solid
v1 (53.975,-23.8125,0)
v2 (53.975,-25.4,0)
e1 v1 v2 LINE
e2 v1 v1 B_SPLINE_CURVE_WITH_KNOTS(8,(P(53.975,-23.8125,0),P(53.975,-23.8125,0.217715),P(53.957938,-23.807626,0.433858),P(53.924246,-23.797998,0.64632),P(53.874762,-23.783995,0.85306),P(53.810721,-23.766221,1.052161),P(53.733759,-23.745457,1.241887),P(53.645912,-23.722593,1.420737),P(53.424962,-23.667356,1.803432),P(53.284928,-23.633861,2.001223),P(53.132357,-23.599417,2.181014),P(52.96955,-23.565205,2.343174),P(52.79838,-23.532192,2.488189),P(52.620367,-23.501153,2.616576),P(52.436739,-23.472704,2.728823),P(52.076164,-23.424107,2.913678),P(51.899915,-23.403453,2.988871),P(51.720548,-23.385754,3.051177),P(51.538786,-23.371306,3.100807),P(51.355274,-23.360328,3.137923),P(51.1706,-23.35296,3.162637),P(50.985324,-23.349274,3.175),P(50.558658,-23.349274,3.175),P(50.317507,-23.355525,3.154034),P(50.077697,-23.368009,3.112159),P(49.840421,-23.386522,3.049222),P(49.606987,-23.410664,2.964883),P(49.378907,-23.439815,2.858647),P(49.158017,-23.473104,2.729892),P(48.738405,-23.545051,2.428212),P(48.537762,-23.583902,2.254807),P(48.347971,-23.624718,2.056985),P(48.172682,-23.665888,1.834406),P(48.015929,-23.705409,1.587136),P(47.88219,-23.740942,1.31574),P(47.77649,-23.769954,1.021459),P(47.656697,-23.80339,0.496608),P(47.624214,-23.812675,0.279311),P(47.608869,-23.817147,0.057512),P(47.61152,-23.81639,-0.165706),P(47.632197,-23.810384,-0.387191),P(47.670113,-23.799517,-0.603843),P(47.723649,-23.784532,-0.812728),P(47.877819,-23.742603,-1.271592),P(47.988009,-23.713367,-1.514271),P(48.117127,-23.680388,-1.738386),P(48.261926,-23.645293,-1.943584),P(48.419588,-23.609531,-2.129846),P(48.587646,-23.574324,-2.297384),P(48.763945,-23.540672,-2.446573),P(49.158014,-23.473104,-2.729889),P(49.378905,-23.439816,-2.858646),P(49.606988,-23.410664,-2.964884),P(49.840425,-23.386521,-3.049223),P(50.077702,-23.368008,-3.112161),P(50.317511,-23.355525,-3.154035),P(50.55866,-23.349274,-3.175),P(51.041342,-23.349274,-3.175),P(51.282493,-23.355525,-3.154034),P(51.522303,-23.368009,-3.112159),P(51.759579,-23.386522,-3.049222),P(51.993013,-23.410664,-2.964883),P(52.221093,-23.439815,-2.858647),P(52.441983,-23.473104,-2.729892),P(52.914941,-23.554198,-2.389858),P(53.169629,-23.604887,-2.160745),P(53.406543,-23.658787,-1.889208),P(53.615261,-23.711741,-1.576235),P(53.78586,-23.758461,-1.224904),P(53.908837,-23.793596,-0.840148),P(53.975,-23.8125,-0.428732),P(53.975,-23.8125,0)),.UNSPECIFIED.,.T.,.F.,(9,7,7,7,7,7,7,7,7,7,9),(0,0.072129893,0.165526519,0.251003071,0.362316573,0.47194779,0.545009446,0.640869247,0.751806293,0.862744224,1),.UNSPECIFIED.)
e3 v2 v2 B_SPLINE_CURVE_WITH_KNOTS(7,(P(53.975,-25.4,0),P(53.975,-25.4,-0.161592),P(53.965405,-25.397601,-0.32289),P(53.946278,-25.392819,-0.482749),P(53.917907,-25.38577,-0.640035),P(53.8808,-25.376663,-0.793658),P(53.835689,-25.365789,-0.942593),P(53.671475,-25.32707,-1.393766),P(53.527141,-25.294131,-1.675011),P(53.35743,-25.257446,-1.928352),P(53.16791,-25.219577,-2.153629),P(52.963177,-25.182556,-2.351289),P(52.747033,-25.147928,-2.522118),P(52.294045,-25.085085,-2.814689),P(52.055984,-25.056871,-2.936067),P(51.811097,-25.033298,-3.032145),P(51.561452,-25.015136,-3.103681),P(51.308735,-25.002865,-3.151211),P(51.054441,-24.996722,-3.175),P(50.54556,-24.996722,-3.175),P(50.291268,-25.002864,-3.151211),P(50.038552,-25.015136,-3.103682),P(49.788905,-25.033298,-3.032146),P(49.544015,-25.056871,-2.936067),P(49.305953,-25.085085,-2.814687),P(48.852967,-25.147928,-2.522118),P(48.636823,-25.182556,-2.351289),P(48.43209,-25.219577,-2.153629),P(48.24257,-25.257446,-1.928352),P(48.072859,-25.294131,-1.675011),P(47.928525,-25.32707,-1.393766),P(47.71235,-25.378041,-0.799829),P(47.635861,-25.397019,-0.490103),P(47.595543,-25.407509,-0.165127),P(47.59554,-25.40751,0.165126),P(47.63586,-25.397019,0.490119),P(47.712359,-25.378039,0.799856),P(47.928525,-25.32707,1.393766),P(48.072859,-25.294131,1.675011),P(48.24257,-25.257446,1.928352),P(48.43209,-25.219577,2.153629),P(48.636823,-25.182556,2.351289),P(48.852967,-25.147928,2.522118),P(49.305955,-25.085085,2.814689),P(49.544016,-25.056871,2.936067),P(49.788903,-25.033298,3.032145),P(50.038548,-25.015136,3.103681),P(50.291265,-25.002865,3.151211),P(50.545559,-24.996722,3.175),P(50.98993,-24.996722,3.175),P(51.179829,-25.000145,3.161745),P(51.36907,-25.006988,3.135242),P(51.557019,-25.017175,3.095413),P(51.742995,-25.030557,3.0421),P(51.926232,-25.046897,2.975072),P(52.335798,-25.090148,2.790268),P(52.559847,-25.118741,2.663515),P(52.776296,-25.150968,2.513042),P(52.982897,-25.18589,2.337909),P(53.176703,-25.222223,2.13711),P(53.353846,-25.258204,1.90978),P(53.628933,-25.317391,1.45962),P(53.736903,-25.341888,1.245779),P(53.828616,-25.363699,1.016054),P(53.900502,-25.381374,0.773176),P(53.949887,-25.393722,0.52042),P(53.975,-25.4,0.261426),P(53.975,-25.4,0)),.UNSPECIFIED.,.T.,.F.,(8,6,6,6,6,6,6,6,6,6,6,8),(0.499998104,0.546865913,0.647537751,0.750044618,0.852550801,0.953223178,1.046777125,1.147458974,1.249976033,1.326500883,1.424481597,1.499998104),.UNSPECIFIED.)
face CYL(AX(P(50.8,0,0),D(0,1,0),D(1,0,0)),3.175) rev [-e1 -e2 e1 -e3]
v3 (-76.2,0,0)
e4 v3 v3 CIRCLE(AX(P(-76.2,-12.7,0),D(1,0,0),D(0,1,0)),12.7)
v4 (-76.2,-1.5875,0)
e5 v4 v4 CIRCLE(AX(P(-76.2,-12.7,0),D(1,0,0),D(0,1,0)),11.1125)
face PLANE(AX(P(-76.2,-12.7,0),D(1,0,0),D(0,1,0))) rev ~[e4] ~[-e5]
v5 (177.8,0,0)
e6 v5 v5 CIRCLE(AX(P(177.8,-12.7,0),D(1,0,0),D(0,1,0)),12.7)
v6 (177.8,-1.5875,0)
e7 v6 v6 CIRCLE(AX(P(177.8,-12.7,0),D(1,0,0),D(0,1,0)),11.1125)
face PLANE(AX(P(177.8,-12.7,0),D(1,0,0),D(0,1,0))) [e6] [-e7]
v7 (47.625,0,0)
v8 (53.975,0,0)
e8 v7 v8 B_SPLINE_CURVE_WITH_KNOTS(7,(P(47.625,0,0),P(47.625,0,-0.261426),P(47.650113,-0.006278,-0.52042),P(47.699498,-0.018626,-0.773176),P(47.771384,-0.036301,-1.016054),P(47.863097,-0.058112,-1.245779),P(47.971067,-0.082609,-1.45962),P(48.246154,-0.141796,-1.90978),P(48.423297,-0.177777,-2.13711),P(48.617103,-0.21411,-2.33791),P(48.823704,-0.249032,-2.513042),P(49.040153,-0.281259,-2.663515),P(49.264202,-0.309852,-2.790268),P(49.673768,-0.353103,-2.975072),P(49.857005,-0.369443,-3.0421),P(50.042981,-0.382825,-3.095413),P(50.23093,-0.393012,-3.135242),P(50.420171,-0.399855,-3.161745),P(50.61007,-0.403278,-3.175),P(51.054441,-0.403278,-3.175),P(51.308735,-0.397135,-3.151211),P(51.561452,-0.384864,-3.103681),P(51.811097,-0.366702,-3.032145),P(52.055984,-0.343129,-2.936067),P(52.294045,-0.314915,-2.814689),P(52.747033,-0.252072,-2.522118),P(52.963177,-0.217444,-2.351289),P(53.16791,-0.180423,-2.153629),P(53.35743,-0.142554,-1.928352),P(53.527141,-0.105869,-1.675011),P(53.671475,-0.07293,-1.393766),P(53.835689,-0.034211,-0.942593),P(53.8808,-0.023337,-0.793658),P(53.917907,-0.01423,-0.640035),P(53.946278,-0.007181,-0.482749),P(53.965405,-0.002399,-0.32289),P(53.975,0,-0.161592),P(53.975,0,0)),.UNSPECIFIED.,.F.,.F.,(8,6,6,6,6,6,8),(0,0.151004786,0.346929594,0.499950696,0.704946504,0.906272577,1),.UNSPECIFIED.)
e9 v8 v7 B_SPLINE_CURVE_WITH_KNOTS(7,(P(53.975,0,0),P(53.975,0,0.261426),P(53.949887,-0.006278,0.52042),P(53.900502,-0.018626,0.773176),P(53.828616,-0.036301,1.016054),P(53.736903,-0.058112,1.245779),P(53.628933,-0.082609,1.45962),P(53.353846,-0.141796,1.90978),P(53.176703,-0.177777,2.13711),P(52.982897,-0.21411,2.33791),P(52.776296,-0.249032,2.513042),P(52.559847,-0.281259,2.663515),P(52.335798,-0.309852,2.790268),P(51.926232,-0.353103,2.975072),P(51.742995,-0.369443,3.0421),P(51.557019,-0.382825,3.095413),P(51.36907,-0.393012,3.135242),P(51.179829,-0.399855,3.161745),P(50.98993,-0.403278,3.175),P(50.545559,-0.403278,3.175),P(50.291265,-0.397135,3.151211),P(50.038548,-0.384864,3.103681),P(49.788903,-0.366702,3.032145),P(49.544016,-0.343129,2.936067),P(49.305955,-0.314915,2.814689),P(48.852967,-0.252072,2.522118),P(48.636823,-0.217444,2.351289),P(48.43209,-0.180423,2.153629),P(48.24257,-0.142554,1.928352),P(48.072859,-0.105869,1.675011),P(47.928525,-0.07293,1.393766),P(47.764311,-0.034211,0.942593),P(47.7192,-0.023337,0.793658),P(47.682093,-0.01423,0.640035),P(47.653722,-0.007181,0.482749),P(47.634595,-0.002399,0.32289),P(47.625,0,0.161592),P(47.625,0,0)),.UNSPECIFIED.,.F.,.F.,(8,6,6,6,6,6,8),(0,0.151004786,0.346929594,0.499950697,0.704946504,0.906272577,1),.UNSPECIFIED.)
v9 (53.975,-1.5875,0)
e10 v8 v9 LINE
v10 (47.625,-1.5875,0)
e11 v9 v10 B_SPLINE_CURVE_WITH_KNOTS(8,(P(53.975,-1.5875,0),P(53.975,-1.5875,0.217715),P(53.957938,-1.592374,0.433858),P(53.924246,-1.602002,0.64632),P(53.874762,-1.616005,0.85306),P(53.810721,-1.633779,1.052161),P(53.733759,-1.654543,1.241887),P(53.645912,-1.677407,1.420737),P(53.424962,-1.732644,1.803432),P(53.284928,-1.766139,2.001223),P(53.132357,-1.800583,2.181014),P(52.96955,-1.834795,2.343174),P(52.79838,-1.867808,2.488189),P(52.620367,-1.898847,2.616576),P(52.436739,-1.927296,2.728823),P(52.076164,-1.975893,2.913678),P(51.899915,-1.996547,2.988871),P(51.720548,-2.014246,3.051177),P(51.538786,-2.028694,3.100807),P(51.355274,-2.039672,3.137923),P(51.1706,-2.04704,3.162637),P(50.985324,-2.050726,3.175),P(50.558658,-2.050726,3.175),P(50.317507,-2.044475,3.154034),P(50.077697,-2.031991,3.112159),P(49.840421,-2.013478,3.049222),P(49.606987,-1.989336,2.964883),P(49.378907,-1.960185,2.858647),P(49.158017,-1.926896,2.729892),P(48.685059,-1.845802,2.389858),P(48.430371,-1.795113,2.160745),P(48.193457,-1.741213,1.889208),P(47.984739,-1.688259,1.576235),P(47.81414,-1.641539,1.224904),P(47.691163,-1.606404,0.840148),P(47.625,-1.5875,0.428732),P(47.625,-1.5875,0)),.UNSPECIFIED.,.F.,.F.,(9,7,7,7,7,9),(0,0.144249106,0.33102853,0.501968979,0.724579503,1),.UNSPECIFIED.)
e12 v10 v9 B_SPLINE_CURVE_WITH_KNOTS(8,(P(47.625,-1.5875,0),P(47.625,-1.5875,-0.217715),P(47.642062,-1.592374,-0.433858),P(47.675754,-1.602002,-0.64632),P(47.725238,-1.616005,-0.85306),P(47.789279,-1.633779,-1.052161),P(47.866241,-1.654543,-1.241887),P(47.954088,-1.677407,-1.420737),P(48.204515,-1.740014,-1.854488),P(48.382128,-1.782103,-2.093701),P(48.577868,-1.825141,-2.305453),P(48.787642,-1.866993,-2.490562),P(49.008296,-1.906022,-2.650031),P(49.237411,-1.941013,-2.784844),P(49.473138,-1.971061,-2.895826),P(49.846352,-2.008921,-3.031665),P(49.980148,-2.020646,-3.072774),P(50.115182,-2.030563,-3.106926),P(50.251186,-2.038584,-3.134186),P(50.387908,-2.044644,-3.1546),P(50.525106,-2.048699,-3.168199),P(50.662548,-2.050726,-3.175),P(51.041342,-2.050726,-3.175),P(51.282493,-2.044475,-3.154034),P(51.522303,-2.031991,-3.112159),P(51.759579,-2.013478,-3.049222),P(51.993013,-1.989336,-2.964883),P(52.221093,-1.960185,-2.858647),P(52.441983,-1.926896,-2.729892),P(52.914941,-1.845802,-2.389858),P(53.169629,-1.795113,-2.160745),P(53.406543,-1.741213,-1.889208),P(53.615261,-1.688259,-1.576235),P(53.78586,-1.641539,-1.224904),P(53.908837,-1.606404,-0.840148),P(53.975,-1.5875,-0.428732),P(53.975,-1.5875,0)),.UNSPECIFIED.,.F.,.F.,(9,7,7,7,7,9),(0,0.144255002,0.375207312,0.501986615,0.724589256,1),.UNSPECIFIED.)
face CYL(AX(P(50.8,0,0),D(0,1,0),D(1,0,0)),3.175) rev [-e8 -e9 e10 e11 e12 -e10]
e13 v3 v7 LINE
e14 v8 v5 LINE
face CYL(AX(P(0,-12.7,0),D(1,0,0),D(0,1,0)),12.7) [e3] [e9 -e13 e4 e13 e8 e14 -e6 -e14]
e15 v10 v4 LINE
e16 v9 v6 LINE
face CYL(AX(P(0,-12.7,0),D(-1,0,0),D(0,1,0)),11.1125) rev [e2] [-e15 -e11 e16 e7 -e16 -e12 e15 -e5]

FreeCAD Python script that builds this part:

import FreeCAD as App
import Part
import Sketcher
from FreeCAD import Vector
Q = App.Units.Quantity

doc = App.newDocument("Part")
params = doc.addObject("Spreadsheet::Sheet", "Params")
for row, (alias, value) in enumerate([
    ("sketch1_diameter", "1 in"),
    ("sketch1_diameter2", "0.875 in"),
    ("pad1_length", "7 in"),
    ("pad1_length2", "3 in"),
    ("sketch2_diameter", "0.25 in"),
    ("pocket1_length", "1 in"),
], start=1):
    params.set(f"A{row}", alias)
    params.set(f"B{row}", "=" + value)
    params.setAlias(f"B{row}", alias)

body = doc.addObject("PartDesign::Body", "Body")

# Sketch on YZ plane
sketch1 = doc.addObject("Sketcher::SketchObject", "Sketch")
body.addObject(sketch1)
sketch1.AttachmentSupport = (doc.YZ_Plane, [""])
sketch1.MapMode = "FlatFace"
sketch1.addGeometry(Part.Circle(Vector(-12.7, 0, 0), Vector(0, 0, 1), 12.7), False)
sketch1.addGeometry(Part.Circle(Vector(-12.7, 0, 0), Vector(0, 0, 1), 11.1125), False)
sketch1.addConstraint(Sketcher.Constraint("Coincident", 1, 3, 0, 3))
sketch1.addConstraint(Sketcher.Constraint("PointOnObject", 0, 3, -1))
sketch1.addConstraint(Sketcher.Constraint("Diameter", 0, Q("1 in")))
sketch1.addConstraint(Sketcher.Constraint("Diameter", 1, Q("0.875 in")))
sketch1.addConstraint(Sketcher.Constraint("DistanceX", 0, 3, -1, 1, Q("0.5 in")))
sketch1.setExpression("Constraints[2]", "Params.sketch1_diameter")
sketch1.setExpression("Constraints[3]", "Params.sketch1_diameter2")
pad1 = doc.addObject("PartDesign::Pad", "Pad")
body.addObject(pad1)
pad1.Profile = sketch1
pad1.Type = "TwoLengths"
pad1.setExpression("Length", "Params.pad1_length")
pad1.setExpression("Length2", "Params.pad1_length2")

# Sketch on XZ plane
sketch2 = doc.addObject("Sketcher::SketchObject", "Sketch001")
body.addObject(sketch2)
sketch2.AttachmentSupport = (doc.XZ_Plane, [""])
sketch2.MapMode = "FlatFace"
sketch2.addGeometry(Part.Circle(Vector(50.8, 0, 0), Vector(0, 0, 1), 3.175), False)
sketch2.addConstraint(Sketcher.Constraint("PointOnObject", 0, 3, -1))
sketch2.addConstraint(Sketcher.Constraint("Diameter", 0, Q("0.25 in")))
sketch2.addConstraint(Sketcher.Constraint("DistanceX", -1, 1, 0, 3, Q("2 in")))
sketch2.setExpression("Constraints[1]", "Params.sketch2_diameter")
pocket1 = doc.addObject("PartDesign::Pocket", "Pocket")
body.addObject(pocket1)
pocket1.Profile = sketch2
pocket1.setExpression("Length", "Params.pocket1_length")
pocket1.Reversed = True

doc.recompute()
